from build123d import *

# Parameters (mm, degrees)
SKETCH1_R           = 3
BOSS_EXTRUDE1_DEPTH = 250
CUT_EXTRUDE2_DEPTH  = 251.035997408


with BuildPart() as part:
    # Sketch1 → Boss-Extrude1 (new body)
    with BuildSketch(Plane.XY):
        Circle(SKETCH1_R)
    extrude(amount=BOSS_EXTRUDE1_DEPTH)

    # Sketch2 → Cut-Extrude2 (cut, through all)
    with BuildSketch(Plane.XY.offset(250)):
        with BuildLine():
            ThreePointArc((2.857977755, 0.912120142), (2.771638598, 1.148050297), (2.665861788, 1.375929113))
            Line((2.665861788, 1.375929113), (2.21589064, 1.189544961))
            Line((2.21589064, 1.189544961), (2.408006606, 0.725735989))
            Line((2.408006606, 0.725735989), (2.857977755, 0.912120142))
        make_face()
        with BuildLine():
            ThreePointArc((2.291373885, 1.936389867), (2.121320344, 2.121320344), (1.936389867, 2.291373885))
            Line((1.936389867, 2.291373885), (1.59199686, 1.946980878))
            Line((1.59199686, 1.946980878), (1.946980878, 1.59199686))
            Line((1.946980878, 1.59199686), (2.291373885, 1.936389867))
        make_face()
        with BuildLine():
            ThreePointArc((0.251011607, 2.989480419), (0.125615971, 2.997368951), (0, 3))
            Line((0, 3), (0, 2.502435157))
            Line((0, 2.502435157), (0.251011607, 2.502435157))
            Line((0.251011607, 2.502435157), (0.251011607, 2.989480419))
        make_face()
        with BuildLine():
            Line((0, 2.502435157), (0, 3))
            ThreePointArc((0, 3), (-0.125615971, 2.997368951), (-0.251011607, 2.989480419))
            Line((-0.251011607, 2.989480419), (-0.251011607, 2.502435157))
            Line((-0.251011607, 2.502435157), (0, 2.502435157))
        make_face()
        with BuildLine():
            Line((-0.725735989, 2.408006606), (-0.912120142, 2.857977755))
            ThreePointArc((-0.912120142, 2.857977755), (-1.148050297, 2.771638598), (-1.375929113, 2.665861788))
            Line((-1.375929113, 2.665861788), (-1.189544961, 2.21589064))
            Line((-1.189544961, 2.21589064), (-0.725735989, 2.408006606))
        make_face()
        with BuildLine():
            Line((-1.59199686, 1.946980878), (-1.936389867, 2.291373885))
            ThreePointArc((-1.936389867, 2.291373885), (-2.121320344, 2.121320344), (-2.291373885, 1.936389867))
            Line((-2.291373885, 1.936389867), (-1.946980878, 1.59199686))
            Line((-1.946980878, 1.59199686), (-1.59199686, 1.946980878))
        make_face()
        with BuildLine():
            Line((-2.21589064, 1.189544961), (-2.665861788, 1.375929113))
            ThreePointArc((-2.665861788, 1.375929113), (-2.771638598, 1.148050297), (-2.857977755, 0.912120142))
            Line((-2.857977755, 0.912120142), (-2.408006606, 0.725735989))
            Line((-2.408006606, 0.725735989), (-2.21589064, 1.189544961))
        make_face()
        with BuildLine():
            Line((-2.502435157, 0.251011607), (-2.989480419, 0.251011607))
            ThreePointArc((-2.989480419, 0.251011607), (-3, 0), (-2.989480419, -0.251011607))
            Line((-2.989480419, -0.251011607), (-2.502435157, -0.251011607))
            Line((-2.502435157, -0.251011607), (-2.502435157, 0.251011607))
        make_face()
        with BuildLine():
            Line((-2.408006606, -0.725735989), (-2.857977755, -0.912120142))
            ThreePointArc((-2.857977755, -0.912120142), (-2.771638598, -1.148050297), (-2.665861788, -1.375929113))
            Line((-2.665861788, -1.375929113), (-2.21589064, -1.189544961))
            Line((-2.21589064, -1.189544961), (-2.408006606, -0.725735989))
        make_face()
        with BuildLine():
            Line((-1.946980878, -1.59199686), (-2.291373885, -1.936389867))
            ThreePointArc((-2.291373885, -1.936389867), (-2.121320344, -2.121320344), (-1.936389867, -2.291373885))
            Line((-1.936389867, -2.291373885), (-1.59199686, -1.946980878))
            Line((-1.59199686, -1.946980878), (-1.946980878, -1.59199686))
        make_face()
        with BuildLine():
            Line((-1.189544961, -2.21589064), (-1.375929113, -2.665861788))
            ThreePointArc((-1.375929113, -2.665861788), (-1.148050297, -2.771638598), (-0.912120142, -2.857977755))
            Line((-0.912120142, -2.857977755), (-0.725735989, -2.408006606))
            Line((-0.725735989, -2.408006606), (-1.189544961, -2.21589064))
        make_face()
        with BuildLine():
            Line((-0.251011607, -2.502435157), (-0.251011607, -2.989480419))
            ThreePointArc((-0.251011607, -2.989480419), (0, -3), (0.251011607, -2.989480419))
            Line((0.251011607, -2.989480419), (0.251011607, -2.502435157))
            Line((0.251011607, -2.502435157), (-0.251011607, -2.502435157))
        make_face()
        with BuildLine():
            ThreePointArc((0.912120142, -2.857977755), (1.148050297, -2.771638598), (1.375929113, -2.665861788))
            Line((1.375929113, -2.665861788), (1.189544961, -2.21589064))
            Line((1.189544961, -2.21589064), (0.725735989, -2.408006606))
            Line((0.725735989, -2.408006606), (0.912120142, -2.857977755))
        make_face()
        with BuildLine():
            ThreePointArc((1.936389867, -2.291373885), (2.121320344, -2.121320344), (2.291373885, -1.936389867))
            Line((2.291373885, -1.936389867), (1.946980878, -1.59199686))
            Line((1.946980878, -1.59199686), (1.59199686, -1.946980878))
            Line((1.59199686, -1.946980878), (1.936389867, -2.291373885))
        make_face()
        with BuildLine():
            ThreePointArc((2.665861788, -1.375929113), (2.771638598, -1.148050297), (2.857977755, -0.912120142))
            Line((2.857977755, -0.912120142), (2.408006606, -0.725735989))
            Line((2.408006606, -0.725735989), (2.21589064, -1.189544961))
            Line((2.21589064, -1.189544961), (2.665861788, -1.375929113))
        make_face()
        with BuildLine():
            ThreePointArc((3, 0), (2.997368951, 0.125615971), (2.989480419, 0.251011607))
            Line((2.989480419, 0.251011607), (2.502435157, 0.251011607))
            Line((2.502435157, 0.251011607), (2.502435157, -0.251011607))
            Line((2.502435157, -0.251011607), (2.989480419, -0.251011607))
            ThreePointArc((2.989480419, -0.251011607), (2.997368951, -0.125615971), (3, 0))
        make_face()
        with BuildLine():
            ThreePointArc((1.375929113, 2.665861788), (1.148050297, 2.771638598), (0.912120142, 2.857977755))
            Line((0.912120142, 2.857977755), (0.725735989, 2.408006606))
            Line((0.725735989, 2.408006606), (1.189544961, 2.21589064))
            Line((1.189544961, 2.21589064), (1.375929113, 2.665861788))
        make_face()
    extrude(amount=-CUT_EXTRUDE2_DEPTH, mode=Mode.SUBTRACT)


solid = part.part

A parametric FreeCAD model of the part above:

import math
import FreeCAD as App
import Part
import Sketcher
from FreeCAD import Vector
Q = App.Units.Quantity

doc = App.newDocument("Part")
params = doc.addObject("Spreadsheet::Sheet", "Params")
for row, (alias, value) in enumerate([
    ("sketch1_diameter", "6 mm"),
    ("pad1_length", "250 mm"),
    ("sketch2_radius", "3 mm"),
], start=1):
    params.set(f"A{row}", alias)
    params.set(f"B{row}", "=" + value)
    params.setAlias(f"B{row}", alias)

body = doc.addObject("PartDesign::Body", "Body")

# Sketch on XY plane
sketch1 = doc.addObject("Sketcher::SketchObject", "Sketch")
body.addObject(sketch1)
sketch1.AttachmentSupport = (doc.XY_Plane, [""])
sketch1.MapMode = "FlatFace"
sketch1.addGeometry(Part.Circle(Vector(0, 0, 0), Vector(0, 0, 1), 3), False)
sketch1.addConstraint(Sketcher.Constraint("Coincident", 0, 3, -1, 1))
sketch1.addConstraint(Sketcher.Constraint("Diameter", 0, 6.0))
sketch1.setExpression("Constraints[1]", "Params.sketch1_diameter")
pad1 = doc.addObject("PartDesign::Pad", "Pad")
body.addObject(pad1)
pad1.Profile = sketch1
pad1.setExpression("Length", "Params.pad1_length")

# Sketch on XY plane
sketch2 = doc.addObject("Sketcher::SketchObject", "Sketch001")
body.addObject(sketch2)
sketch2.AttachmentSupport = (doc.XY_Plane, [""])
sketch2.MapMode = "FlatFace"
sketch2.AttachmentOffset = App.Placement(Vector(0, 0, 250), App.Rotation())
sketch2.addGeometry(Part.ArcOfCircle(Part.Circle(Vector(0, 0, 0), Vector(0, 0, 1), 3), math.radians(17.7), math.radians(27.3)), False)
sketch2.addGeometry(Part.LineSegment(Vector(2.67, 1.38, 0), Vector(2.22, 1.19, 0)), False)
sketch2.addGeometry(Part.LineSegment(Vector(2.22, 1.19, 0), Vector(2.41, 0.73, 0)), False)
sketch2.addGeometry(Part.LineSegment(Vector(2.41, 0.73, 0), Vector(2.86, 0.91, 0)), False)
sketch2.addGeometry(Part.ArcOfCircle(Part.Circle(Vector(0, 0, 0), Vector(0, 0, 1), 3), math.radians(40.2), math.radians(49.8)), False)
sketch2.addGeometry(Part.LineSegment(Vector(1.94, 2.29, 0), Vector(1.59, 1.95, 0)), False)
sketch2.addGeometry(Part.LineSegment(Vector(1.59, 1.95, 0), Vector(1.95, 1.59, 0)), False)
sketch2.addGeometry(Part.LineSegment(Vector(1.95, 1.59, 0), Vector(2.29, 1.94, 0)), False)
sketch2.addGeometry(Part.ArcOfCircle(Part.Circle(Vector(0, 0, 0), Vector(0, 0, 1), 3), math.radians(85.2), math.radians(90)), False)
sketch2.addGeometry(Part.ArcOfCircle(Part.Circle(Vector(0, 0, 0), Vector(0, 0, 1), 3), math.radians(90), math.radians(94.8)), False)
sketch2.addGeometry(Part.LineSegment(Vector(-0.25, 2.99, 0), Vector(-0.25, 2.5, 0)), False)
sketch2.addGeometry(Part.LineSegment(Vector(-0.25, 2.5, 0), Vector(0.25, 2.5, 0)), False)
sketch2.addGeometry(Part.LineSegment(Vector(0.25, 2.5, 0), Vector(0.25, 2.99, 0)), False)
sketch2.addGeometry(Part.LineSegment(Vector(-0.73, 2.41, 0), Vector(-0.91, 2.86, 0)), False)
sketch2.addGeometry(Part.ArcOfCircle(Part.Circle(Vector(0, 0, 0), Vector(0, 0, 1), 3), math.radians(107.7), math.radians(117.3)), False)
sketch2.addGeometry(Part.LineSegment(Vector(-1.38, 2.67, 0), Vector(-1.19, 2.22, 0)), False)
sketch2.addGeometry(Part.LineSegment(Vector(-1.19, 2.22, 0), Vector(-0.73, 2.41, 0)), False)
sketch2.addGeometry(Part.LineSegment(Vector(-1.59, 1.95, 0), Vector(-1.94, 2.29, 0)), False)
sketch2.addGeometry(Part.ArcOfCircle(Part.Circle(Vector(0, 0, 0), Vector(0, 0, 1), 3), math.radians(130.2), math.radians(139.8)), False)
sketch2.addGeometry(Part.LineSegment(Vector(-2.29, 1.94, 0), Vector(-1.95, 1.59, 0)), False)
sketch2.addGeometry(Part.LineSegment(Vector(-1.95, 1.59, 0), Vector(-1.59, 1.95, 0)), False)
sketch2.addGeometry(Part.LineSegment(Vector(-2.22, 1.19, 0), Vector(-2.67, 1.38, 0)), False)
sketch2.addGeometry(Part.ArcOfCircle(Part.Circle(Vector(0, 0, 0), Vector(0, 0, 1), 3), math.radians(152.7), math.radians(162.3)), False)
sketch2.addGeometry(Part.LineSegment(Vector(-2.86, 0.91, 0), Vector(-2.41, 0.73, 0)), False)
sketch2.addGeometry(Part.LineSegment(Vector(-2.41, 0.73, 0), Vector(-2.22, 1.19, 0)), False)
sketch2.addGeometry(Part.LineSegment(Vector(-2.5, 0.25, 0), Vector(-2.99, 0.25, 0)), False)
sketch2.addGeometry(Part.ArcOfCircle(Part.Circle(Vector(0, 0, 0), Vector(0, 0, 1), 3), math.radians(175.2), math.radians(184.8)), False)
sketch2.addGeometry(Part.LineSegment(Vector(-2.99, -0.25, 0), Vector(-2.5, -0.25, 0)), False)
sketch2.addGeometry(Part.LineSegment(Vector(-2.5, -0.25, 0), Vector(-2.5, 0.25, 0)), False)
sketch2.addGeometry(Part.LineSegment(Vector(-2.41, -0.73, 0), Vector(-2.86, -0.91, 0)), False)
sketch2.addGeometry(Part.ArcOfCircle(Part.Circle(Vector(0, 0, 0), Vector(0, 0, 1), 3), math.radians(-162.3), math.radians(-152.7)), False)
sketch2.addGeometry(Part.LineSegment(Vector(-2.67, -1.38, 0), Vector(-2.22, -1.19, 0)), False)
sketch2.addGeometry(Part.LineSegment(Vector(-2.22, -1.19, 0), Vector(-2.41, -0.73, 0)), False)
sketch2.addGeometry(Part.LineSegment(Vector(-1.95, -1.59, 0), Vector(-2.29, -1.94, 0)), False)
sketch2.addGeometry(Part.ArcOfCircle(Part.Circle(Vector(0, 0, 0), Vector(0, 0, 1), 3), math.radians(-139.8), math.radians(-130.2)), False)
sketch2.addGeometry(Part.LineSegment(Vector(-1.94, -2.29, 0), Vector(-1.59, -1.95, 0)), False)
sketch2.addGeometry(Part.LineSegment(Vector(-1.59, -1.95, 0), Vector(-1.95, -1.59, 0)), False)
sketch2.addGeometry(Part.LineSegment(Vector(-1.19, -2.22, 0), Vector(-1.38, -2.67, 0)), False)
sketch2.addGeometry(Part.ArcOfCircle(Part.Circle(Vector(0, 0, 0), Vector(0, 0, 1), 3), math.radians(-117.3), math.radians(-107.7)), False)
sketch2.addGeometry(Part.LineSegment(Vector(-0.91, -2.86, 0), Vector(-0.73, -2.41, 0)), False)
sketch2.addGeometry(Part.LineSegment(Vector(-0.73, -2.41, 0), Vector(-1.19, -2.22, 0)), False)
sketch2.addGeometry(Part.LineSegment(Vector(-0.25, -2.5, 0), Vector(-0.25, -2.99, 0)), False)
sketch2.addGeometry(Part.ArcOfCircle(Part.Circle(Vector(0, 0, 0), Vector(0, 0, 1), 3), math.radians(-94.8), math.radians(-85.2)), False)
sketch2.addGeometry(Part.LineSegment(Vector(0.25, -2.99, 0), Vector(0.25, -2.5, 0)), False)
sketch2.addGeometry(Part.LineSegment(Vector(0.25, -2.5, 0), Vector(-0.25, -2.5, 0)), False)
sketch2.addGeometry(Part.ArcOfCircle(Part.Circle(Vector(0, 0, 0), Vector(0, 0, 1), 3), math.radians(-72.3), math.radians(-62.7)), False)
sketch2.addGeometry(Part.LineSegment(Vector(1.38, -2.67, 0), Vector(1.19, -2.22, 0)), False)
sketch2.addGeometry(Part.LineSegment(Vector(1.19, -2.22, 0), Vector(0.73, -2.41, 0)), False)
sketch2.addGeometry(Part.LineSegment(Vector(0.73, -2.41, 0), Vector(0.91, -2.86, 0)), False)
sketch2.addGeometry(Part.ArcOfCircle(Part.Circle(Vector(0, 0, 0), Vector(0, 0, 1), 3), math.radians(-49.8), math.radians(-40.2)), False)
sketch2.addGeometry(Part.LineSegment(Vector(2.29, -1.94, 0), Vector(1.95, -1.59, 0)), False)
sketch2.addGeometry(Part.LineSegment(Vector(1.95, -1.59, 0), Vector(1.59, -1.95, 0)), False)
sketch2.addGeometry(Part.LineSegment(Vector(1.59, -1.95, 0), Vector(1.94, -2.29, 0)), False)
sketch2.addGeometry(Part.ArcOfCircle(Part.Circle(Vector(0, 0, 0), Vector(0, 0, 1), 3), math.radians(-27.3), math.radians(-17.7)), False)
sketch2.addGeometry(Part.LineSegment(Vector(2.86, -0.91, 0), Vector(2.41, -0.73, 0)), False)
sketch2.addGeometry(Part.LineSegment(Vector(2.41, -0.73, 0), Vector(2.22, -1.19, 0)), False)
sketch2.addGeometry(Part.LineSegment(Vector(2.22, -1.19, 0), Vector(2.67, -1.38, 0)), False)
sketch2.addGeometry(Part.ArcOfCircle(Part.Circle(Vector(0, 0, 0), Vector(0, 0, 1), 3), math.radians(0), math.radians(4.8)), False)
sketch2.addGeometry(Part.LineSegment(Vector(2.99, 0.25, 0), Vector(2.5, 0.25, 0)), False)
sketch2.addGeometry(Part.LineSegment(Vector(2.5, 0.25, 0), Vector(2.5, -0.25, 0)), False)
sketch2.addGeometry(Part.LineSegment(Vector(2.5, -0.25, 0), Vector(2.99, -0.25, 0)), False)
sketch2.addGeometry(Part.ArcOfCircle(Part.Circle(Vector(0, 0, 0), Vector(0, 0, 1), 3), math.radians(-4.8), math.radians(0)), False)
sketch2.addGeometry(Part.ArcOfCircle(Part.Circle(Vector(0, 0, 0), Vector(0, 0, 1), 3), math.radians(62.7), math.radians(72.3)), False)
sketch2.addGeometry(Part.LineSegment(Vector(0.91, 2.86, 0), Vector(0.73, 2.41, 0)), False)
sketch2.addGeometry(Part.LineSegment(Vector(0.73, 2.41, 0), Vector(1.19, 2.22, 0)), False)
sketch2.addGeometry(Part.LineSegment(Vector(1.19, 2.22, 0), Vector(1.38, 2.67, 0)), False)
sketch2.addConstraint(Sketcher.Constraint("Coincident", 0, 2, 1, 1))
sketch2.addConstraint(Sketcher.Constraint("Coincident", 1, 2, 2, 1))
sketch2.addConstraint(Sketcher.Constraint("Coincident", 2, 2, 3, 1))
sketch2.addConstraint(Sketcher.Constraint("Coincident", 3, 2, 0, 1))
sketch2.addConstraint(Sketcher.Constraint("Coincident", 4, 2, 5, 1))
sketch2.addConstraint(Sketcher.Constraint("Coincident", 5, 2, 6, 1))
sketch2.addConstraint(Sketcher.Constraint("Coincident", 6, 2, 7, 1))
sketch2.addConstraint(Sketcher.Constraint("Coincident", 7, 2, 4, 1))
sketch2.addConstraint(Sketcher.Constraint("Tangent", 8, 2, 9, 1))
sketch2.addConstraint(Sketcher.Constraint("Coincident", 9, 2, 10, 1))
sketch2.addConstraint(Sketcher.Constraint("Coincident", 10, 2, 11, 1))
sketch2.addConstraint(Sketcher.Constraint("Coincident", 11, 2, 12, 1))
sketch2.addConstraint(Sketcher.Constraint("Coincident", 12, 2, 8, 1))
sketch2.addConstraint(Sketcher.Constraint("Coincident", 13, 2, 14, 1))
sketch2.addConstraint(Sketcher.Constraint("Coincident", 14, 2, 15, 1))
sketch2.addConstraint(Sketcher.Constraint("Coincident", 15, 2, 16, 1))
sketch2.addConstraint(Sketcher.Constraint("Coincident", 16, 2, 13, 1))
sketch2.addConstraint(Sketcher.Constraint("Coincident", 17, 2, 18, 1))
sketch2.addConstraint(Sketcher.Constraint("Coincident", 18, 2, 19, 1))
sketch2.addConstraint(Sketcher.Constraint("Coincident", 19, 2, 20, 1))
sketch2.addConstraint(Sketcher.Constraint("Coincident", 20, 2, 17, 1))
sketch2.addConstraint(Sketcher.Constraint("Coincident", 21, 2, 22, 1))
sketch2.addConstraint(Sketcher.Constraint("Coincident", 22, 2, 23, 1))
sketch2.addConstraint(Sketcher.Constraint("Coincident", 23, 2, 24, 1))
sketch2.addConstraint(Sketcher.Constraint("Coincident", 24, 2, 21, 1))
sketch2.addConstraint(Sketcher.Constraint("Coincident", 25, 2, 26, 1))
sketch2.addConstraint(Sketcher.Constraint("Coincident", 26, 2, 27, 1))
sketch2.addConstraint(Sketcher.Constraint("Coincident", 27, 2, 28, 1))
sketch2.addConstraint(Sketcher.Constraint("Coincident", 28, 2, 25, 1))
sketch2.addConstraint(Sketcher.Constraint("Coincident", 29, 2, 30, 1))
sketch2.addConstraint(Sketcher.Constraint("Coincident", 30, 2, 31, 1))
sketch2.addConstraint(Sketcher.Constraint("Coincident", 31, 2, 32, 1))
sketch2.addConstraint(Sketcher.Constraint("Coincident", 32, 2, 29, 1))
sketch2.addConstraint(Sketcher.Constraint("Coincident", 33, 2, 34, 1))
sketch2.addConstraint(Sketcher.Constraint("Coincident", 34, 2, 35, 1))
sketch2.addConstraint(Sketcher.Constraint("Coincident", 35, 2, 36, 1))
sketch2.addConstraint(Sketcher.Constraint("Coincident", 36, 2, 33, 1))
sketch2.addConstraint(Sketcher.Constraint("Coincident", 37, 2, 38, 1))
sketch2.addConstraint(Sketcher.Constraint("Coincident", 38, 2, 39, 1))
sketch2.addConstraint(Sketcher.Constraint("Coincident", 39, 2, 40, 1))
sketch2.addConstraint(Sketcher.Constraint("Coincident", 40, 2, 37, 1))
sketch2.addConstraint(Sketcher.Constraint("Coincident", 41, 2, 42, 1))
sketch2.addConstraint(Sketcher.Constraint("Coincident", 42, 2, 43, 1))
sketch2.addConstraint(Sketcher.Constraint("Coincident", 43, 2, 44, 1))
sketch2.addConstraint(Sketcher.Constraint("Coincident", 44, 2, 41, 1))
sketch2.addConstraint(Sketcher.Constraint("Coincident", 45, 2, 46, 1))
sketch2.addConstraint(Sketcher.Constraint("Coincident", 46, 2, 47, 1))
sketch2.addConstraint(Sketcher.Constraint("Coincident", 47, 2, 48, 1))
sketch2.addConstraint(Sketcher.Constraint("Coincident", 48, 2, 45, 1))
sketch2.addConstraint(Sketcher.Constraint("Coincident", 49, 2, 50, 1))
sketch2.addConstraint(Sketcher.Constraint("Coincident", 50, 2, 51, 1))
sketch2.addConstraint(Sketcher.Constraint("Coincident", 51, 2, 52, 1))
sketch2.addConstraint(Sketcher.Constraint("Coincident", 52, 2, 49, 1))
sketch2.addConstraint(Sketcher.Constraint("Coincident", 53, 2, 54, 1))
sketch2.addConstraint(Sketcher.Constraint("Coincident", 54, 2, 55, 1))
sketch2.addConstraint(Sketcher.Constraint("Coincident", 55, 2, 56, 1))
sketch2.addConstraint(Sketcher.Constraint("Coincident", 56, 2, 53, 1))
sketch2.addConstraint(Sketcher.Constraint("Coincident", 57, 2, 58, 1))
sketch2.addConstraint(Sketcher.Constraint("Coincident", 58, 2, 59, 1))
sketch2.addConstraint(Sketcher.Constraint("Coincident", 59, 2, 60, 1))
sketch2.addConstraint(Sketcher.Constraint("Coincident", 60, 2, 61, 1))
sketch2.addConstraint(Sketcher.Constraint("Tangent", 61, 2, 57, 1))
sketch2.addConstraint(Sketcher.Constraint("Coincident", 62, 2, 63, 1))
sketch2.addConstraint(Sketcher.Constraint("Coincident", 63, 2, 64, 1))
sketch2.addConstraint(Sketcher.Constraint("Coincident", 64, 2, 65, 1))
sketch2.addConstraint(Sketcher.Constraint("Coincident", 65, 2, 62, 1))
sketch2.addConstraint(Sketcher.Constraint("Vertical", 10))
sketch2.addConstraint(Sketcher.Constraint("Horizontal", 11))
sketch2.addConstraint(Sketcher.Constraint("Vertical", 12))
sketch2.addConstraint(Sketcher.Constraint("Horizontal", 25))
sketch2.addConstraint(Sketcher.Constraint("Horizontal", 27))
sketch2.addConstraint(Sketcher.Constraint("Vertical", 28))
sketch2.addConstraint(Sketcher.Constraint("Vertical", 41))
sketch2.addConstraint(Sketcher.Constraint("Vertical", 43))
sketch2.addConstraint(Sketcher.Constraint("Horizontal", 44))
sketch2.addConstraint(Sketcher.Constraint("Horizontal", 58))
sketch2.addConstraint(Sketcher.Constraint("Vertical", 59))
sketch2.addConstraint(Sketcher.Constraint("Horizontal", 60))
sketch2.addConstraint(Sketcher.Constraint("Coincident", 0, 3, -1, 1))
sketch2.addConstraint(Sketcher.Constraint("Coincident", 4, 3, -1, 1))
sketch2.addConstraint(Sketcher.Constraint("Coincident", 8, 3, -1, 1))
sketch2.addConstraint(Sketcher.Constraint("Coincident", 14, 3, -1, 1))
sketch2.addConstraint(Sketcher.Constraint("Coincident", 18, 3, -1, 1))
sketch2.addConstraint(Sketcher.Constraint("Coincident", 22, 3, -1, 1))
sketch2.addConstraint(Sketcher.Constraint("Coincident", 26, 3, -1, 1))
sketch2.addConstraint(Sketcher.Constraint("Coincident", 30, 3, -1, 1))
sketch2.addConstraint(Sketcher.Constraint("Coincident", 34, 3, -1, 1))
sketch2.addConstraint(Sketcher.Constraint("Coincident", 38, 3, -1, 1))
sketch2.addConstraint(Sketcher.Constraint("Coincident", 42, 3, -1, 1))
sketch2.addConstraint(Sketcher.Constraint("Coincident", 45, 3, -1, 1))
sketch2.addConstraint(Sketcher.Constraint("Coincident", 49, 3, -1, 1))
sketch2.addConstraint(Sketcher.Constraint("Coincident", 53, 3, -1, 1))
sketch2.addConstraint(Sketcher.Constraint("Coincident", 57, 3, -1, 1))
sketch2.addConstraint(Sketcher.Constraint("Coincident", 62, 3, -1, 1))
sketch2.addConstraint(Sketcher.Constraint("Equal", 0, 4))
sketch2.addConstraint(Sketcher.Constraint("Equal", 4, 8))
sketch2.addConstraint(Sketcher.Constraint("Equal", 8, 9))
sketch2.addConstraint(Sketcher.Constraint("Equal", 9, 14))
sketch2.addConstraint(Sketcher.Constraint("Equal", 14, 18))
sketch2.addConstraint(Sketcher.Constraint("Equal", 18, 22))
sketch2.addConstraint(Sketcher.Constraint("Equal", 22, 26))
sketch2.addConstraint(Sketcher.Constraint("Equal", 26, 30))
sketch2.addConstraint(Sketcher.Constraint("Equal", 30, 34))
sketch2.addConstraint(Sketcher.Constraint("Equal", 34, 38))
sketch2.addConstraint(Sketcher.Constraint("Equal", 38, 42))
sketch2.addConstraint(Sketcher.Constraint("Equal", 42, 45))
sketch2.addConstraint(Sketcher.Constraint("Equal", 45, 49))
sketch2.addConstraint(Sketcher.Constraint("Equal", 49, 53))
sketch2.addConstraint(Sketcher.Constraint("Equal", 53, 57))
sketch2.addConstraint(Sketcher.Constraint("Equal", 57, 61))
sketch2.addConstraint(Sketcher.Constraint("Equal", 61, 62))
sketch2.addConstraint(Sketcher.Constraint("Symmetric", 1, 2, 31, 2, -1, 1))
sketch2.addConstraint(Sketcher.Constraint("Symmetric", 2, 2, 32, 2, -1, 1))
sketch2.addConstraint(Sketcher.Constraint("Symmetric", 5, 2, 35, 2, -1, 1))
sketch2.addConstraint(Sketcher.Constraint("Symmetric", 6, 2, 36, 2, -1, 1))
sketch2.addConstraint(Sketcher.Constraint("Symmetric", 10, 2, 43, 2, -1, 1))
sketch2.addConstraint(Sketcher.Constraint("Symmetric", 15, 2, 46, 2, -1, 1))
sketch2.addConstraint(Sketcher.Constraint("Symmetric", 16, 2, 47, 2, -1, 1))
sketch2.addConstraint(Sketcher.Constraint("Symmetric", 19, 2, 50, 2, -1, 1))
sketch2.addConstraint(Sketcher.Constraint("Symmetric", 20, 2, 51, 2, -1, 1))
sketch2.addConstraint(Sketcher.Constraint("Symmetric", 23, 2, 54, 2, -1, 1))
sketch2.addConstraint(Sketcher.Constraint("Symmetric", 24, 2, 55, 2, -1, 1))
sketch2.addConstraint(Sketcher.Constraint("Symmetric", 27, 2, 58, 2, -1, 1))
sketch2.addConstraint(Sketcher.Constraint("Symmetric", 39, 2, 63, 2, -1, 1))
sketch2.addConstraint(Sketcher.Constraint("Symmetric", 40, 2, 64, 2, -1, 1))
sketch2.addConstraint(Sketcher.Constraint("Symmetric", 6, 2, 19, 2, -2))
sketch2.addConstraint(Sketcher.Constraint("Symmetric", 5, 2, 20, 2, -2))
sketch2.addConstraint(Sketcher.Constraint("Symmetric", 2, 2, 23, 2, -2))
sketch2.addConstraint(Sketcher.Constraint("Symmetric", 1, 2, 24, 2, -2))
sketch2.addConstraint(Sketcher.Constraint("Symmetric", 40, 2, 46, 2, -2))
sketch2.addConstraint(Sketcher.Constraint("Symmetric", 39, 2, 47, 2, -2))
sketch2.addConstraint(Sketcher.Constraint("PointOnObject", 8, 2, -2))
sketch2.addConstraint(Sketcher.Constraint("PointOnObject", 61, 2, -1))
sketch2.addConstraint(Sketcher.Constraint("Perpendicular", 1, 2))
sketch2.addConstraint(Sketcher.Constraint("Perpendicular", 2, 3))
sketch2.addConstraint(Sketcher.Constraint("Perpendicular", 5, 6))
sketch2.addConstraint(Sketcher.Constraint("Perpendicular", 6, 7))
sketch2.addConstraint(Sketcher.Constraint("Perpendicular", 3, 13))
sketch2.addConstraint(Sketcher.Constraint("Parallel", 13, 15))
sketch2.addConstraint(Sketcher.Constraint("Perpendicular", 15, 16))
sketch2.addConstraint(Sketcher.Constraint("Perpendicular", 7, 17))
sketch2.addConstraint(Sketcher.Constraint("Parallel", 17, 19))
sketch2.addConstraint(Sketcher.Constraint("Perpendicular", 19, 20))
sketch2.addConstraint(Sketcher.Constraint("Parallel", 21, 23))
sketch2.addConstraint(Sketcher.Constraint("Perpendicular", 23, 24))
sketch2.addConstraint(Sketcher.Constraint("Parallel", 16, 29))
sketch2.addConstraint(Sketcher.Constraint("Parallel", 29, 31))
sketch2.addConstraint(Sketcher.Constraint("Parallel", 20, 33))
sketch2.addConstraint(Sketcher.Constraint("Parallel", 33, 35))
sketch2.addConstraint(Sketcher.Constraint("Parallel", 24, 37))
sketch2.addConstraint(Sketcher.Constraint("Parallel", 37, 39))
sketch2.addConstraint(Sketcher.Constraint("Parallel", 32, 46))
sketch2.addConstraint(Sketcher.Constraint("Perpendicular", 47, 48))
sketch2.addConstraint(Sketcher.Constraint("Parallel", 36, 50))
sketch2.addConstraint(Sketcher.Constraint("Perpendicular", 51, 52))
sketch2.addConstraint(Sketcher.Constraint("Parallel", 40, 54))
sketch2.addConstraint(Sketcher.Constraint("Perpendicular", 55, 56))
sketch2.addConstraint(Sketcher.Constraint("Perpendicular", 56, 63))
sketch2.addConstraint(Sketcher.Constraint("Perpendicular", 64, 65))
sketch2.addConstraint(Sketcher.Constraint("Horizontal", 9, 2, 12, 2))
sketch2.addConstraint(Sketcher.Constraint("Horizontal", 41, 2, 42, 2))
sketch2.addConstraint(Sketcher.Constraint("Horizontal", 28, 2, 57, 2))
sketch2.addConstraint(Sketcher.Constraint("Horizontal", 27, 2, 59, 2))
sketch2.addConstraint(Sketcher.Constraint("Equal", 60, 10))
sketch2.addConstraint(Sketcher.Constraint("Equal", 44, 28))
sketch2.addConstraint(Sketcher.Constraint("Equal", 1, 3))
sketch2.addConstraint(Sketcher.Constraint("Equal", 3, 5))
sketch2.addConstraint(Sketcher.Constraint("Equal", 2, 6))
sketch2.addConstraint(Sketcher.Constraint("Equal", 5, 7))
sketch2.addConstraint(Sketcher.Constraint("Equal", 7, 13))
sketch2.addConstraint(Sketcher.Constraint("Equal", 13, 15))
sketch2.addConstraint(Sketcher.Constraint("Equal", 6, 16))
sketch2.addConstraint(Sketcher.Constraint("Radius", 0, 3.0))
sketch2.addConstraint(Sketcher.Constraint("Angle", 1, Q("-157.5 deg")))
sketch2.addConstraint(Sketcher.Constraint("DistanceX", 11, 1, 11, 2, 0.502023))
sketch2.addConstraint(Sketcher.Constraint("DistanceX", 25, 2, 25, 1, 0.487045))
sketch2.addConstraint(Sketcher.Constraint("DistanceX", -1, 1, 0, 2, 2.665862))
sketch2.addConstraint(Sketcher.Constraint("DistanceX", -1, 1, 1, 2, 2.215891))
sketch2.setExpression("Constraints[172]", "Params.sketch2_radius")
pocket1 = doc.addObject("PartDesign::Pocket", "Pocket")
body.addObject(pocket1)
pocket1.Profile = sketch2
pocket1.Type = "ThroughAll"

doc.recompute()
